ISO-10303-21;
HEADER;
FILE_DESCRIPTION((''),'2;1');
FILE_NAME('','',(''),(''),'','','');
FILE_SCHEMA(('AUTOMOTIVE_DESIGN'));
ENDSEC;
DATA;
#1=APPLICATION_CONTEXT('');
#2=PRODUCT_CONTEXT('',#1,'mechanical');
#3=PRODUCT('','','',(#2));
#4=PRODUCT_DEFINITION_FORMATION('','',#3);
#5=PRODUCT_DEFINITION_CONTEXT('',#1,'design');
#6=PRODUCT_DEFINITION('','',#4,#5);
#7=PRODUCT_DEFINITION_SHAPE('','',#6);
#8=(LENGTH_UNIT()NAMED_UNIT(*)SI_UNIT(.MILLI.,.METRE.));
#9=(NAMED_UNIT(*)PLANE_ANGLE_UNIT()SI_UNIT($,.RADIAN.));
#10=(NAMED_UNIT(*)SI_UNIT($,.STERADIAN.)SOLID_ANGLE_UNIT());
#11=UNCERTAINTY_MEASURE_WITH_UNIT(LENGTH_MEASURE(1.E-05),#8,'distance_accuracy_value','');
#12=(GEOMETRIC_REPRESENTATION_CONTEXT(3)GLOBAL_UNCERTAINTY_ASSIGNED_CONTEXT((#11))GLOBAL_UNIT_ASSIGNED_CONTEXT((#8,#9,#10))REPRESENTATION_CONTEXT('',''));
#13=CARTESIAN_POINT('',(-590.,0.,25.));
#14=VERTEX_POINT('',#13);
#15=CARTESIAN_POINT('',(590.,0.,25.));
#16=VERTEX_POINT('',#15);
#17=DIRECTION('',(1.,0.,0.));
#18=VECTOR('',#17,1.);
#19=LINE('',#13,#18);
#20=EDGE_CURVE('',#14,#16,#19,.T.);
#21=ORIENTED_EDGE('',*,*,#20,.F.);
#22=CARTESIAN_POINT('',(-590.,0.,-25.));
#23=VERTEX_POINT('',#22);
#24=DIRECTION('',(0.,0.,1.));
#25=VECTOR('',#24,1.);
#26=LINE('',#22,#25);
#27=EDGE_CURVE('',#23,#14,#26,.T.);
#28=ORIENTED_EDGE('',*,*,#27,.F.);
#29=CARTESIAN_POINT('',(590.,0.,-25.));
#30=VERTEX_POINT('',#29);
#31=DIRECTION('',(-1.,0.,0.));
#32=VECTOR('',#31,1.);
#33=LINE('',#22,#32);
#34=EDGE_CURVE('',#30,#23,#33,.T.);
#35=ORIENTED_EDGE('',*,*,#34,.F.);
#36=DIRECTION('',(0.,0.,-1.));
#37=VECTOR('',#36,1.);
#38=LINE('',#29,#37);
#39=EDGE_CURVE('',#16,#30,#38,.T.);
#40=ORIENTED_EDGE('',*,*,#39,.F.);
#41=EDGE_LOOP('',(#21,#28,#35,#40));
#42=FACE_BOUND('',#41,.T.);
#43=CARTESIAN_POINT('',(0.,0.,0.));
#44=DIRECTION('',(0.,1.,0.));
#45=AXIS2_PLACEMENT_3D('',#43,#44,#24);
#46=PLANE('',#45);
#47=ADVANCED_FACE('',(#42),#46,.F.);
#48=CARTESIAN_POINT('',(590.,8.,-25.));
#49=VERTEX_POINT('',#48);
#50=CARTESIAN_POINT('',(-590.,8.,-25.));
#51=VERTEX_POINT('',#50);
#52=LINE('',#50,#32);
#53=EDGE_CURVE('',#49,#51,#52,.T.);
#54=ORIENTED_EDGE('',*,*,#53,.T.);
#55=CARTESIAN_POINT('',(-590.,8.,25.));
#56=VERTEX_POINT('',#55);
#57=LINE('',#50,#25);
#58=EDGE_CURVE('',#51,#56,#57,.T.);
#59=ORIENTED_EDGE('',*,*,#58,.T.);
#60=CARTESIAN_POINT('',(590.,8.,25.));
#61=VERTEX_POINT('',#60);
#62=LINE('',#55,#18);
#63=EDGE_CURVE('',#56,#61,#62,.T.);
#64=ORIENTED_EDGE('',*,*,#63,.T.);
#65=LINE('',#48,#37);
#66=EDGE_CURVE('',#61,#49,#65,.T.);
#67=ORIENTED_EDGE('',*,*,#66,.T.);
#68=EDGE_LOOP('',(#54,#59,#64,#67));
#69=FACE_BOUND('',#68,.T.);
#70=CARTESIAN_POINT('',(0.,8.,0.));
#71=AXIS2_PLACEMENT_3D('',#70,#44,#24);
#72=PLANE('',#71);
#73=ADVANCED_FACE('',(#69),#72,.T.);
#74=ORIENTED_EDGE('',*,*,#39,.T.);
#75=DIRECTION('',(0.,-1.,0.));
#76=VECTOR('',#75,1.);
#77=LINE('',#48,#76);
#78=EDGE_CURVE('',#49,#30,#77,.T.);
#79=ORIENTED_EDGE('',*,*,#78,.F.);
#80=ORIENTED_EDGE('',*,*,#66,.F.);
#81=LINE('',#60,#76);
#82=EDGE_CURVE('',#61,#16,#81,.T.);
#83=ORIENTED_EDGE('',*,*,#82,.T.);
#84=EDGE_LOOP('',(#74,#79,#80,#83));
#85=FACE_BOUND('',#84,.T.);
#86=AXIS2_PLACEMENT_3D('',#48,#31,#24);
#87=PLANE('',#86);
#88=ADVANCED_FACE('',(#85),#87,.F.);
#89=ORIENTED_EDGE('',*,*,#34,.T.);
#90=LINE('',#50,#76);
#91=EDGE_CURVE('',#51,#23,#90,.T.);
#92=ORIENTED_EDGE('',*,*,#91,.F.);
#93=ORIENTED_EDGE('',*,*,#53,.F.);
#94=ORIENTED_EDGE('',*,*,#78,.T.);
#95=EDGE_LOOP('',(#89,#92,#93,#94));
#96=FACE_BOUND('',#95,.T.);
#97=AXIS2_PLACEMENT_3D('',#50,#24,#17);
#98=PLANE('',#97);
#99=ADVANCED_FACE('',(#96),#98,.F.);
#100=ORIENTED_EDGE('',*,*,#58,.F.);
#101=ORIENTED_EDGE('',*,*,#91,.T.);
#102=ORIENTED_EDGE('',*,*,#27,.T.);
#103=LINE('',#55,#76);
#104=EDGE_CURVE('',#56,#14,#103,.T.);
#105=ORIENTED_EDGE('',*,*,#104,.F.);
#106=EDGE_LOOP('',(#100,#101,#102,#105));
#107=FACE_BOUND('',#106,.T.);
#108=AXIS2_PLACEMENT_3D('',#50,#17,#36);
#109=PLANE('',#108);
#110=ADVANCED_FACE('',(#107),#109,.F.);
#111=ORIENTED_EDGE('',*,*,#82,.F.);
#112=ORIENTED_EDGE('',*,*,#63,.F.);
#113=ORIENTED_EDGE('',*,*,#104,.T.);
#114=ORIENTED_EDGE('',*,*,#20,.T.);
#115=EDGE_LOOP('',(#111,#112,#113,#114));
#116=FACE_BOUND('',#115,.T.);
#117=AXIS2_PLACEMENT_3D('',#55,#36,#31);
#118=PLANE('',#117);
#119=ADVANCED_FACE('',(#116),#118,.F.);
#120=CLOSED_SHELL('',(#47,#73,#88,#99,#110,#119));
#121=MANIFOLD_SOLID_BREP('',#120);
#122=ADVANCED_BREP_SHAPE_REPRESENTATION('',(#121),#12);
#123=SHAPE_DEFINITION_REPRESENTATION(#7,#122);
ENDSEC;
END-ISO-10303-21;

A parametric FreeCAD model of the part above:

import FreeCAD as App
import Part
import Sketcher

V = App.Vector
Q = App.Units.Quantity

doc = App.newDocument("Part")
body = doc.addObject("PartDesign::Body", "Body")

# Sketch on XZ plane
sketch1 = doc.addObject("Sketcher::SketchObject", "Sketch")
body.addObject(sketch1)
sketch1.AttachmentSupport = (doc.XZ_Plane, [""])
sketch1.MapMode = "FlatFace"
sketch1.addGeometry([
    Part.LineSegment(V(-590, -25, 0), V(-590, 25, 0)),
    Part.LineSegment(V(-590, 25, 0), V(590, 25, 0)),
    Part.LineSegment(V(590, 25, 0), V(590, -25, 0)),
    Part.LineSegment(V(590, -25, 0), V(-590, -25, 0)),
], False)
sketch1.addConstraint([
    Sketcher.Constraint("Coincident", 0, 2, 1, 1),
    Sketcher.Constraint("Coincident", 1, 2, 2, 1),
    Sketcher.Constraint("Coincident", 2, 2, 3, 1),
    Sketcher.Constraint("Coincident", 3, 2, 0, 1),
    Sketcher.Constraint("Vertical", 0),
    Sketcher.Constraint("Horizontal", 1),
    Sketcher.Constraint("Vertical", 2),
    Sketcher.Constraint("Horizontal", 3),
    Sketcher.Constraint("Symmetric", 0, 2, 2, 2, -1, 1),
    Sketcher.Constraint("DistanceX", 1, 1, 1, 2, Q("1180 mm")),
    Sketcher.Constraint("DistanceY", 0, 1, 0, 2, Q("50 mm")),
])
pad1 = doc.addObject("PartDesign::Pad", "Pad")
body.addObject(pad1)
pad1.Profile = sketch1
pad1.Length = 8
pad1.Reversed = True

doc.recompute()
